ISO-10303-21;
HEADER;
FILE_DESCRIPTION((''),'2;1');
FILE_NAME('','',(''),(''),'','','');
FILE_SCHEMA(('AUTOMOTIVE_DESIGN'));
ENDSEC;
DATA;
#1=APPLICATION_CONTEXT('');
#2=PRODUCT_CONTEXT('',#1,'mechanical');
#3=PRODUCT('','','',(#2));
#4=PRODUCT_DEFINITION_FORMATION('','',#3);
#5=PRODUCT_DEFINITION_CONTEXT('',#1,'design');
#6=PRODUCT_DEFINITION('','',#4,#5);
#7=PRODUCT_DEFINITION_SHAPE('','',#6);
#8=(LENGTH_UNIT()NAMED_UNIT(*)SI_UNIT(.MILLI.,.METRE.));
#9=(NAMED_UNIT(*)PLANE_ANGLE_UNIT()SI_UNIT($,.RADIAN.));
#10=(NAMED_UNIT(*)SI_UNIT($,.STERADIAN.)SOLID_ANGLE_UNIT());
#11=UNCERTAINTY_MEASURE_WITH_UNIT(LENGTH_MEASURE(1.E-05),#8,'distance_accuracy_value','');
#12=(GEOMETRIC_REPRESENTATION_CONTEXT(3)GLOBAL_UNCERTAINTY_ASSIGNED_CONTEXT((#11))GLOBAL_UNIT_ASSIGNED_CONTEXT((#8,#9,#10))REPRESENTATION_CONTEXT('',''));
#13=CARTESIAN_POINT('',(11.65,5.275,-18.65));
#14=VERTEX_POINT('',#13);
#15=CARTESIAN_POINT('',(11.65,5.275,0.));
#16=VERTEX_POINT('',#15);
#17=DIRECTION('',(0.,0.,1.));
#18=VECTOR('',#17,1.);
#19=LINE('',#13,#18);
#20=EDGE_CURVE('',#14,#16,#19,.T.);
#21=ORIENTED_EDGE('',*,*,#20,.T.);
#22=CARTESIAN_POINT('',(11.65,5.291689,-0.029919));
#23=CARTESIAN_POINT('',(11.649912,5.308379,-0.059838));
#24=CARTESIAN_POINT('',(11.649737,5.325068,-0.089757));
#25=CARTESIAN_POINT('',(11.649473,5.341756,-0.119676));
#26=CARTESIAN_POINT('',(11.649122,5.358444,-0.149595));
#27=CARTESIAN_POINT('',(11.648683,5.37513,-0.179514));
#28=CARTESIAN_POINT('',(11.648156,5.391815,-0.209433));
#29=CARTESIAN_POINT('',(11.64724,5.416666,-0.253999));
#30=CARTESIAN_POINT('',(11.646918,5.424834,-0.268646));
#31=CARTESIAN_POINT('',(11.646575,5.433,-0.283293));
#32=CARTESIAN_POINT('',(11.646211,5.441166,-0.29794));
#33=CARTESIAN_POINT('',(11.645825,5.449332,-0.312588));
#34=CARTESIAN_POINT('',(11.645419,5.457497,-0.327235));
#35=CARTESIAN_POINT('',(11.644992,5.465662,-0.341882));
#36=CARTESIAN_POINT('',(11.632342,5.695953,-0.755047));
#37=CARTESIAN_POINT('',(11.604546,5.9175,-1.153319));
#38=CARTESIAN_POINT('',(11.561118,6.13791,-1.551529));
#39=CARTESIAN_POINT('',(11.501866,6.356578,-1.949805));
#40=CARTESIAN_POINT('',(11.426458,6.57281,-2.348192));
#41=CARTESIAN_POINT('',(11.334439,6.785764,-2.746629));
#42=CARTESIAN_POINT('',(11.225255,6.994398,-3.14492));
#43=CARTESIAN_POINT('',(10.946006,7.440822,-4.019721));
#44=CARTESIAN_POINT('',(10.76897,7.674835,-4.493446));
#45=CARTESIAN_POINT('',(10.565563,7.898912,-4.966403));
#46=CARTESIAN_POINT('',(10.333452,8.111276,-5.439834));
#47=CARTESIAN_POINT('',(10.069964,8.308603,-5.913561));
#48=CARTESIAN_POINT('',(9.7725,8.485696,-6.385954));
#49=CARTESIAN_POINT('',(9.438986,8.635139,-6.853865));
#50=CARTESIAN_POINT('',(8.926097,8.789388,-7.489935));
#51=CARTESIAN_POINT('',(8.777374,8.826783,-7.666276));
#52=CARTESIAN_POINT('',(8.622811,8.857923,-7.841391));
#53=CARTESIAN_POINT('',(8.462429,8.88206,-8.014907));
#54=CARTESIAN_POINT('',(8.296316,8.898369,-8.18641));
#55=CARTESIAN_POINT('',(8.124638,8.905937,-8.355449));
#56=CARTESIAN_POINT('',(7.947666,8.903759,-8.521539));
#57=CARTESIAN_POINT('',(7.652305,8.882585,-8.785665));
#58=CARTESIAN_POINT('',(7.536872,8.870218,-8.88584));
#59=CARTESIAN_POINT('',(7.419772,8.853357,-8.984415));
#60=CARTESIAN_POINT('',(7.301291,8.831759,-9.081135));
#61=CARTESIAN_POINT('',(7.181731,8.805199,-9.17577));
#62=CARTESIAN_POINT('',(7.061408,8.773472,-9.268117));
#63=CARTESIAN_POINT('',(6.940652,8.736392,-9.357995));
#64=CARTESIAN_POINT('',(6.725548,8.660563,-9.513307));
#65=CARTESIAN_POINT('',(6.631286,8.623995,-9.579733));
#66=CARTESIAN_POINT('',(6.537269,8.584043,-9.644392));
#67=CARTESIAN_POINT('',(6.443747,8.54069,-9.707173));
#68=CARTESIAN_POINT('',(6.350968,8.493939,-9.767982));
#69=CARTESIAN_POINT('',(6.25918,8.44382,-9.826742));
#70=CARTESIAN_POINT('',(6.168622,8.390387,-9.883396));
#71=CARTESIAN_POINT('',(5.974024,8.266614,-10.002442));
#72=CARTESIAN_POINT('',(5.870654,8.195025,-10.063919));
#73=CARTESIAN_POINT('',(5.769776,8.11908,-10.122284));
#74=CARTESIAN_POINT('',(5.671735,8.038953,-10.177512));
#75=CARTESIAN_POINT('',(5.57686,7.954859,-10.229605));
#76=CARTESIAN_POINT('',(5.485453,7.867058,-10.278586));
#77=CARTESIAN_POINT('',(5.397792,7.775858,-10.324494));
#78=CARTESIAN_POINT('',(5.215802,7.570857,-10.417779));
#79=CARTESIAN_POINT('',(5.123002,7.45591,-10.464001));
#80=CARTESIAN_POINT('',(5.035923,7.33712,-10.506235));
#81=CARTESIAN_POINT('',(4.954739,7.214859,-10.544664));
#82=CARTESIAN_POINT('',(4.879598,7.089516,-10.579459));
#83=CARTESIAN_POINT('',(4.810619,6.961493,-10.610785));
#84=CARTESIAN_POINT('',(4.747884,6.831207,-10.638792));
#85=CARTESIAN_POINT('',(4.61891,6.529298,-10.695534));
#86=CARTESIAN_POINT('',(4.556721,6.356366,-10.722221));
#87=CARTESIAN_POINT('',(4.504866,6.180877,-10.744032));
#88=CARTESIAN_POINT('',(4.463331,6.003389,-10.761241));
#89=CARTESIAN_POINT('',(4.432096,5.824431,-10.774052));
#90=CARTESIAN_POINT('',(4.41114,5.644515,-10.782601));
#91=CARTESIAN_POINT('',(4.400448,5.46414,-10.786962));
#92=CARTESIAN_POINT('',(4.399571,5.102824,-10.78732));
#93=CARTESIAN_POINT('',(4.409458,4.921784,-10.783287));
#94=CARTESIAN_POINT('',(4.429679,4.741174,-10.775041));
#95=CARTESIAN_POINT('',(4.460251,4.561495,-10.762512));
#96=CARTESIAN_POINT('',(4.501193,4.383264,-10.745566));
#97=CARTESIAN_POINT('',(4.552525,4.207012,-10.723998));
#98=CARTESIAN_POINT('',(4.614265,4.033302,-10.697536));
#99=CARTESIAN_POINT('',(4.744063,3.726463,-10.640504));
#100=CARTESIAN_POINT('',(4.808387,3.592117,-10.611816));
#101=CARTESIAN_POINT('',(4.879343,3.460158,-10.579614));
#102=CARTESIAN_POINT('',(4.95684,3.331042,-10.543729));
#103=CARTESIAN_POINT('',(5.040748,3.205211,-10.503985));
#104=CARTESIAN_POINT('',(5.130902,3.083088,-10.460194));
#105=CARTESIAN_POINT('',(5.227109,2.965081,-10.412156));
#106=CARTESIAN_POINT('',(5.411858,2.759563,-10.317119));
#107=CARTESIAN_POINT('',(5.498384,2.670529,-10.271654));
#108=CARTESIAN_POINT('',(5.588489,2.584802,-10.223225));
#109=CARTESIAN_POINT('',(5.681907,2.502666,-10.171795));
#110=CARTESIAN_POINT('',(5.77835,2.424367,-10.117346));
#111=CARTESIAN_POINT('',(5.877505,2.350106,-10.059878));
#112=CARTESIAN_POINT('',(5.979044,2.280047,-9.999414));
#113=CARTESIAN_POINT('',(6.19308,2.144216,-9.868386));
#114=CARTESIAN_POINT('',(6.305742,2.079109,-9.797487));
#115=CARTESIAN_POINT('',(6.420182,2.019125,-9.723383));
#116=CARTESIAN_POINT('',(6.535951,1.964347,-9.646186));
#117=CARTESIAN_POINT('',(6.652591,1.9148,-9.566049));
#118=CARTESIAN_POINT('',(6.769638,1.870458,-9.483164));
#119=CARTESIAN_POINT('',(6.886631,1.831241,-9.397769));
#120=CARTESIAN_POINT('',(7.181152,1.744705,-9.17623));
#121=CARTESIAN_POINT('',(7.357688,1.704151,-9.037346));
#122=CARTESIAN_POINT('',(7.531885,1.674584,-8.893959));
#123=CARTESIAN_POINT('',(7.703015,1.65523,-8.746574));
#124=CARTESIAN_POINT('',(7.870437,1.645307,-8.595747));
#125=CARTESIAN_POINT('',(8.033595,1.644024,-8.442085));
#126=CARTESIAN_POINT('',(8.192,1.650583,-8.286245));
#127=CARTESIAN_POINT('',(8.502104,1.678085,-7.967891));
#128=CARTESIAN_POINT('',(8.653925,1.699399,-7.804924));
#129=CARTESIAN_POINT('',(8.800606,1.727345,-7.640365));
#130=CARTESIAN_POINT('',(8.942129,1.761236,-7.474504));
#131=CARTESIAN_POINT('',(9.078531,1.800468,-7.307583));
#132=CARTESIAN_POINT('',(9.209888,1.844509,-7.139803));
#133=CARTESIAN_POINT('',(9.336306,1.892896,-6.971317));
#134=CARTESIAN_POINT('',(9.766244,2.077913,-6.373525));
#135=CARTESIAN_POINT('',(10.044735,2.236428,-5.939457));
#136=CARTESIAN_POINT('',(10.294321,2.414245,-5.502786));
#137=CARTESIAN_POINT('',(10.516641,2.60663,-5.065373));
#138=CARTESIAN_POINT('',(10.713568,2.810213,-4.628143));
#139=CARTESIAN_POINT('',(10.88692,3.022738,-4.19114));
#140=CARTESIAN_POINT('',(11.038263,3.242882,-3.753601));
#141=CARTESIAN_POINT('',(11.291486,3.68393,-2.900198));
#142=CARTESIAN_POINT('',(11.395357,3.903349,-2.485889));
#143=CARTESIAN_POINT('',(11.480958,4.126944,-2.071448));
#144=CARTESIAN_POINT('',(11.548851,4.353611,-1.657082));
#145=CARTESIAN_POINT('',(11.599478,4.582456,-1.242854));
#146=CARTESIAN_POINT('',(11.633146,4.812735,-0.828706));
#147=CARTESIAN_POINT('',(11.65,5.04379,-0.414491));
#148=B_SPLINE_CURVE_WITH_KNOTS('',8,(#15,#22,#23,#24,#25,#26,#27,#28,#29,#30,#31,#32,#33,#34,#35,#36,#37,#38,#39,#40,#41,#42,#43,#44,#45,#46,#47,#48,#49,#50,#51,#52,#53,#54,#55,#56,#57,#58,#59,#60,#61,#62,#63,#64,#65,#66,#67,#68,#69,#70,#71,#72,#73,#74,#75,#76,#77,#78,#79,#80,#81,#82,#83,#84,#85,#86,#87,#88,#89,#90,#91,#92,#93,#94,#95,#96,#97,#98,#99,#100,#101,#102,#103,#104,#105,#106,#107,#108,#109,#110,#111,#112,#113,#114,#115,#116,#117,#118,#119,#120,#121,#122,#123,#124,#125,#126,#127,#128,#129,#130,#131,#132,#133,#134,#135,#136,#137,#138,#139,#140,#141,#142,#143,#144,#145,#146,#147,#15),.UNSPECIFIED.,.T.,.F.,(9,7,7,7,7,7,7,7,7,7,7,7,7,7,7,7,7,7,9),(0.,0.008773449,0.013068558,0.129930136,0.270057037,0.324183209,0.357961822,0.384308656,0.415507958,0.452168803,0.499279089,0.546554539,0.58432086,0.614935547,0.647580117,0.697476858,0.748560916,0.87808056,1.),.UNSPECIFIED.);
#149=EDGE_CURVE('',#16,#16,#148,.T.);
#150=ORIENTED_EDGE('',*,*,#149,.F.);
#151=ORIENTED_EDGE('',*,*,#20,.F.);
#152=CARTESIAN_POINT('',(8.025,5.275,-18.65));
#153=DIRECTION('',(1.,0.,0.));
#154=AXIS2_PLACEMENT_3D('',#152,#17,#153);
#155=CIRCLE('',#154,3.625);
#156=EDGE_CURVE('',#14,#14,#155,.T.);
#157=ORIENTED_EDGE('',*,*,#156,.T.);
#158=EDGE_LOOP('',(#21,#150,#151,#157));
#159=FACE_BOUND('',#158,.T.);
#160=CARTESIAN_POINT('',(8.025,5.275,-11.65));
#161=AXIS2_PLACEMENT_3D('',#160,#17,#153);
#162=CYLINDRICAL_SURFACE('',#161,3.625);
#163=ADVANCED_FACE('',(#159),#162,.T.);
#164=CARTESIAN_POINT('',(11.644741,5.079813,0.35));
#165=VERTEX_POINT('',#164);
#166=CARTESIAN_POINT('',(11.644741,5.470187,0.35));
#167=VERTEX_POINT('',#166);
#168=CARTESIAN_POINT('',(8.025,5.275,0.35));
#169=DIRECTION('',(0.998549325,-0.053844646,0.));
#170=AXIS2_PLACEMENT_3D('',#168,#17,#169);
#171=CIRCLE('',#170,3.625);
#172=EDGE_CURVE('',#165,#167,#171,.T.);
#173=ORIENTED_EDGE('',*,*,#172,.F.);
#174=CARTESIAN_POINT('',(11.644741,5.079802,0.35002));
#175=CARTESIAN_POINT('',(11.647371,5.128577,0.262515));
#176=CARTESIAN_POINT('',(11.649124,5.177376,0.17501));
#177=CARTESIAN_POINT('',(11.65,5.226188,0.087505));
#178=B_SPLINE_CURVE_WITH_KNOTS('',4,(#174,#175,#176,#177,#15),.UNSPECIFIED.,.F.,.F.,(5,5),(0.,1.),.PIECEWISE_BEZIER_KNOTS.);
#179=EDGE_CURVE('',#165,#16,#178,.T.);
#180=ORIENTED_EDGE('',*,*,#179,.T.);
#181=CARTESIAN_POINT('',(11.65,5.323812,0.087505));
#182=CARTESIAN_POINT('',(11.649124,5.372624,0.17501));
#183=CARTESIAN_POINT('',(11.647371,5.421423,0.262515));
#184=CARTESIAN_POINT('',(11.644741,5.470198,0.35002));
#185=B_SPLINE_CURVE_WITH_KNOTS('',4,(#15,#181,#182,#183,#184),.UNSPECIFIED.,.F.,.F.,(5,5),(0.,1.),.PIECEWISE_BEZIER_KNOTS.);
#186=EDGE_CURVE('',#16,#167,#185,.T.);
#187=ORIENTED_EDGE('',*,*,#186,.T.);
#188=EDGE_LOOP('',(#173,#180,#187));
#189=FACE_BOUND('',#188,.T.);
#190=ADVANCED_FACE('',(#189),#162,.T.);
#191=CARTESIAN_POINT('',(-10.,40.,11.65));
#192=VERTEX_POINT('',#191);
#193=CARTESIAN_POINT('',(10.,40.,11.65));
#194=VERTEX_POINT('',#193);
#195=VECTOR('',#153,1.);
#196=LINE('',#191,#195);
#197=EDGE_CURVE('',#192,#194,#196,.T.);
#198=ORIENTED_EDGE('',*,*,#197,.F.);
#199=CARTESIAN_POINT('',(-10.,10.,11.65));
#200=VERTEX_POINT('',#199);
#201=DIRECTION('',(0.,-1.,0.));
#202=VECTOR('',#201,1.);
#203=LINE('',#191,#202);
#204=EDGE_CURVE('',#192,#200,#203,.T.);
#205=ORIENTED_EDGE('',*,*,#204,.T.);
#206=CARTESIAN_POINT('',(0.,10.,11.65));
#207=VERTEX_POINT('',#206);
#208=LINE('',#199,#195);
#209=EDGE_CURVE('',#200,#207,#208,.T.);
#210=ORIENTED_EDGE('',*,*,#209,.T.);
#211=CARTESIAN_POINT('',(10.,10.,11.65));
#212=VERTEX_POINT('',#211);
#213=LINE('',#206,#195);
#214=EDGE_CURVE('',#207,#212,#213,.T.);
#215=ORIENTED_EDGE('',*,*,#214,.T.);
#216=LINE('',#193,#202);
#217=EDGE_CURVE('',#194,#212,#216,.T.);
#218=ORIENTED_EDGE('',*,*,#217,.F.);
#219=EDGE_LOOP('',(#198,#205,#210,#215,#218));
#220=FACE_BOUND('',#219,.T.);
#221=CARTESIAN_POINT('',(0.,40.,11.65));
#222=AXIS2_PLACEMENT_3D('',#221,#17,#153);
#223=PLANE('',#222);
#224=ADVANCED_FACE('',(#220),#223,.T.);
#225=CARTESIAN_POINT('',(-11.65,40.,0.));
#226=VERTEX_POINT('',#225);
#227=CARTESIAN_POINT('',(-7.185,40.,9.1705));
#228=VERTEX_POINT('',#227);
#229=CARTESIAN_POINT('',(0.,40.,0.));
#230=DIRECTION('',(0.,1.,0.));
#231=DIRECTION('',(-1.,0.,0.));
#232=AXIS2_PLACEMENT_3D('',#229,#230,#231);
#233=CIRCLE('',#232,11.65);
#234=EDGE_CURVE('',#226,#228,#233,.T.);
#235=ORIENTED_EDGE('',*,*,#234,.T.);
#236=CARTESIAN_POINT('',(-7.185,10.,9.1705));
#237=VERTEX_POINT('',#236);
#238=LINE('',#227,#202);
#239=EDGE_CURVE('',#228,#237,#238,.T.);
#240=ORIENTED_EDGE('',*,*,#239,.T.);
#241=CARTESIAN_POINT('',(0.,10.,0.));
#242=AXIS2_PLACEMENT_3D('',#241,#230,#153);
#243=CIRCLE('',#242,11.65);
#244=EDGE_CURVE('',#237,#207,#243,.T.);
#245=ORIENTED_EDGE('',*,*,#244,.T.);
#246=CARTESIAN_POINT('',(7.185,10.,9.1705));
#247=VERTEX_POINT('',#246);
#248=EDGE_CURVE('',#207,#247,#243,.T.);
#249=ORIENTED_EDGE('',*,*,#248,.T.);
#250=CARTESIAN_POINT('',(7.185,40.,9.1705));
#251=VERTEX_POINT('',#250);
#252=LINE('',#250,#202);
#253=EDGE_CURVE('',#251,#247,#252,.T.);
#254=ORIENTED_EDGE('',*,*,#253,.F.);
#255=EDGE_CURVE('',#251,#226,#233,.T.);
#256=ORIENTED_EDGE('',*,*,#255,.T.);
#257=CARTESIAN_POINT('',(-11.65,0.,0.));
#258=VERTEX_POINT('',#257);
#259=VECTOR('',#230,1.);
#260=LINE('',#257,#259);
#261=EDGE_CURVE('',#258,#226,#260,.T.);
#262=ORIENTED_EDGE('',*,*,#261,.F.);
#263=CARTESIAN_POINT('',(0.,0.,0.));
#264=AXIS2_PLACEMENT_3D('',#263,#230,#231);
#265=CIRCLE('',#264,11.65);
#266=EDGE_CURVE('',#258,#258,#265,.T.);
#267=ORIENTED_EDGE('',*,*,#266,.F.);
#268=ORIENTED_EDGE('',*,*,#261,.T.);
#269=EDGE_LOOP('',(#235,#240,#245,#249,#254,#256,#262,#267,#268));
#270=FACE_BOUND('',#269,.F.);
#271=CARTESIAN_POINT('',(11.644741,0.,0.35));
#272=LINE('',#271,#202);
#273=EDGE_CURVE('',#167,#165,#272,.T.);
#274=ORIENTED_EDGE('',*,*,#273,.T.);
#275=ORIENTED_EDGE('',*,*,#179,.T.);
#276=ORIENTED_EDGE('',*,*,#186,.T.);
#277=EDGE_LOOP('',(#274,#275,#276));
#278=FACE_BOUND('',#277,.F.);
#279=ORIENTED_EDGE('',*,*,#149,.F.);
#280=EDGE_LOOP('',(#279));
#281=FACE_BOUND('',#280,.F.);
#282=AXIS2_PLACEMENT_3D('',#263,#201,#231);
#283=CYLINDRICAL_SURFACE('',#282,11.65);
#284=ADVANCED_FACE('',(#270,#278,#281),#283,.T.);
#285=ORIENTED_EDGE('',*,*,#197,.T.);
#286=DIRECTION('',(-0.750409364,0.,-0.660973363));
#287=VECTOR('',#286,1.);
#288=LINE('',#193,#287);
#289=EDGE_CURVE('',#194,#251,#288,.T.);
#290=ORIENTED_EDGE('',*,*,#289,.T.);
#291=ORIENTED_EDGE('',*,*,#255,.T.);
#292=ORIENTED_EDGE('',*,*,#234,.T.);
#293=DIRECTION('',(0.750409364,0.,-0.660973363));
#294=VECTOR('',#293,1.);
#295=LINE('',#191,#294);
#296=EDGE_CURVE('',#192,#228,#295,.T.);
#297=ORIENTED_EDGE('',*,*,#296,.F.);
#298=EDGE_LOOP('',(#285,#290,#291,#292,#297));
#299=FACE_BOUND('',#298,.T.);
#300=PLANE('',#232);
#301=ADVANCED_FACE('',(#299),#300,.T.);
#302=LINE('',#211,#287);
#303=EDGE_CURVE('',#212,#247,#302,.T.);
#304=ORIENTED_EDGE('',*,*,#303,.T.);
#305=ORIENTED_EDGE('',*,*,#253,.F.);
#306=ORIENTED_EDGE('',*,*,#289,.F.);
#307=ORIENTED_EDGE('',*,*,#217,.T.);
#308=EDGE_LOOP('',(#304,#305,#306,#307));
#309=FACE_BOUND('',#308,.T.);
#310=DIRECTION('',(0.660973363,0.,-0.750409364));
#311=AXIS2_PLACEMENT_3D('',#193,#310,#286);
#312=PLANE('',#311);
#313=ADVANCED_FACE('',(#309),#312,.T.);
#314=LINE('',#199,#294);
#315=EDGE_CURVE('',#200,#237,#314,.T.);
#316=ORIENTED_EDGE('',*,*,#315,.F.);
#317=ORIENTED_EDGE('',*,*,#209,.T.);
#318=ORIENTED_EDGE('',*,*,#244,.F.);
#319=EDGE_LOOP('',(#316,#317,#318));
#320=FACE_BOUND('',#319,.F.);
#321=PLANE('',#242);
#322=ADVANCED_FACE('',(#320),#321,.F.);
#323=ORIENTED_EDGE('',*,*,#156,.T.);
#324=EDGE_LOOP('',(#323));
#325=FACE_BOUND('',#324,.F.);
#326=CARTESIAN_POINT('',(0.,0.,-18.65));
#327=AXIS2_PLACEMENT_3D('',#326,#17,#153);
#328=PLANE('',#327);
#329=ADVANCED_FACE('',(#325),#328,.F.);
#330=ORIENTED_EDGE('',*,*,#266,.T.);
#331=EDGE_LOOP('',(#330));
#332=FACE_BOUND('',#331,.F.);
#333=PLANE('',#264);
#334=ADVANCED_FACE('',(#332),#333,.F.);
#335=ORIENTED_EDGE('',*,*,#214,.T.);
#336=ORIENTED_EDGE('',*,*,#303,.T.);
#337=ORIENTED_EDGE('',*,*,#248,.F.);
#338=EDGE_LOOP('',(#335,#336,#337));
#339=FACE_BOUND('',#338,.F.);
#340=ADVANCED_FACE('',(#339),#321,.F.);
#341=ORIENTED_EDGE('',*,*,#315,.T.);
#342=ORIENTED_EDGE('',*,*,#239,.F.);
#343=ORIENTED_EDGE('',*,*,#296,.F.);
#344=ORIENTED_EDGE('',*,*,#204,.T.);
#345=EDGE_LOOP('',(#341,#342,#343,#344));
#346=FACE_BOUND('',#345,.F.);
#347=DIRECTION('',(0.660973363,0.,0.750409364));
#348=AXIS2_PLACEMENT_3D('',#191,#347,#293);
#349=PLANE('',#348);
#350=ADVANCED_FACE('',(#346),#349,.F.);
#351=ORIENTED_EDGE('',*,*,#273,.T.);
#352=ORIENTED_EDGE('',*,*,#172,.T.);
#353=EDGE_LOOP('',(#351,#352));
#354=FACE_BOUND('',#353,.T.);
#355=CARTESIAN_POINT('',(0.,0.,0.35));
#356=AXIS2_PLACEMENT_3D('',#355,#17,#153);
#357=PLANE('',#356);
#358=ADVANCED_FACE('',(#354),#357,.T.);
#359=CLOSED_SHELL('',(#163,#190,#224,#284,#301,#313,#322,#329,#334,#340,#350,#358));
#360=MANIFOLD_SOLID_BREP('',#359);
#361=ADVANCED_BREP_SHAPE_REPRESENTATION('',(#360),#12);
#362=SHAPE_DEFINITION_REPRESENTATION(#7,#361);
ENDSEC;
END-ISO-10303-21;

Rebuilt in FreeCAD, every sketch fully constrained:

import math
import FreeCAD as App
import Part
import Sketcher

V = App.Vector

doc = App.newDocument("Part")
body = doc.addObject("PartDesign::Body", "Body")

# Sketch on XZ plane
sketch1 = doc.addObject("Sketcher::SketchObject", "Sketch")
body.addObject(sketch1)
sketch1.AttachmentSupport = (doc.XZ_Plane, [""])
sketch1.MapMode = "FlatFace"
sketch1.addGeometry(Part.Circle(V(0, 0, 0), V(0, 0, 1), 12), False)
sketch1.addConstraint(Sketcher.Constraint("Coincident", 0, 3, -1, 1))
sketch1.addConstraint(Sketcher.Constraint("Diameter", 0, 23.3))
pad1 = doc.addObject("PartDesign::Pad", "Pad")
body.addObject(pad1)
pad1.Profile = sketch1
pad1.Length = 40
pad1.Reversed = True

# Sketch on XZ plane
sketch2 = doc.addObject("Sketcher::SketchObject", "Sketch001")
body.addObject(sketch2)
sketch2.AttachmentSupport = (doc.XZ_Plane, [""])
sketch2.MapMode = "FlatFace"
sketch2.AttachmentOffset = App.Placement(V(0, 0, -40), App.Rotation())
sketch2.addGeometry(Part.ArcOfCircle(Part.Circle(V(0, 0, 0), V(0, 0, 1), 11.7), math.radians(90), math.radians(128)), False)
sketch2.addGeometry(Part.LineSegment(V(-7.2, 9.2, 0), V(-10, 11.7, 0)), False)
sketch2.addGeometry(Part.LineSegment(V(-10, 11.7, 0), V(0, 11.7, 0)), False)
sketch2.addGeometry(Part.LineSegment(V(10, 11.7, 0), V(7.2, 9.2, 0)), False)
sketch2.addGeometry(Part.ArcOfCircle(Part.Circle(V(0, 0, 0), V(0, 0, 1), 11.7), math.radians(52), math.radians(90)), False)
sketch2.addGeometry(Part.LineSegment(V(0, 11.7, 0), V(10, 11.7, 0)), False)
sketch2.addConstraint(Sketcher.Constraint("Coincident", 0, 2, 1, 1))
sketch2.addConstraint(Sketcher.Constraint("Coincident", 1, 2, 2, 1))
sketch2.addConstraint(Sketcher.Constraint("Tangent", 2, 2, 0, 1))
sketch2.addConstraint(Sketcher.Constraint("Coincident", 3, 2, 4, 1))
sketch2.addConstraint(Sketcher.Constraint("Tangent", 4, 2, 5, 1))
sketch2.addConstraint(Sketcher.Constraint("Coincident", 5, 2, 3, 1))
sketch2.addConstraint(Sketcher.Constraint("Horizontal", 2))
sketch2.addConstraint(Sketcher.Constraint("Horizontal", 5))
sketch2.addConstraint(Sketcher.Constraint("Coincident", 0, 3, -1, 1))
sketch2.addConstraint(Sketcher.Constraint("Coincident", 4, 3, -1, 1))
sketch2.addConstraint(Sketcher.Constraint("Equal", 0, 4))
sketch2.addConstraint(Sketcher.Constraint("Horizontal", 0, 2, 3, 2))
sketch2.addConstraint(Sketcher.Constraint("Equal", 2, 5))
sketch2.addConstraint(Sketcher.Constraint("DistanceX", 2, 1, 2, 2, 10.0))
sketch2.addConstraint(Sketcher.Constraint("Radius", 0, 11.65))
sketch2.addConstraint(Sketcher.Constraint("DistanceX", 0, 2, -1, 1, 7.185))
pad2 = doc.addObject("PartDesign::Pad", "Pad001")
body.addObject(pad2)
pad2.Profile = sketch2
pad2.Length = 30

# Sketch on XY plane
sketch3 = doc.addObject("Sketcher::SketchObject", "Sketch002")
body.addObject(sketch3)
sketch3.AttachmentSupport = (doc.XY_Plane, [""])
sketch3.MapMode = "FlatFace"
sketch3.AttachmentOffset = App.Placement(V(0, 0, -11.65), App.Rotation())
sketch3.addGeometry(Part.Circle(V(8, 5.3, 0), V(0, 0, 1), 3.6), False)
sketch3.addConstraint(Sketcher.Constraint("Diameter", 0, 7.25))
sketch3.addConstraint(Sketcher.Constraint("DistanceX", -1, 1, 0, 3, 8.025))
sketch3.addConstraint(Sketcher.Constraint("DistanceY", -1, 1, 0, 3, 5.275))
pad3 = doc.addObject("PartDesign::Pad", "Pad002")
body.addObject(pad3)
pad3.Profile = sketch3
pad3.Type = "TwoLengths"
pad3.Length = 12
pad3.Length2 = 7

doc.recompute()
